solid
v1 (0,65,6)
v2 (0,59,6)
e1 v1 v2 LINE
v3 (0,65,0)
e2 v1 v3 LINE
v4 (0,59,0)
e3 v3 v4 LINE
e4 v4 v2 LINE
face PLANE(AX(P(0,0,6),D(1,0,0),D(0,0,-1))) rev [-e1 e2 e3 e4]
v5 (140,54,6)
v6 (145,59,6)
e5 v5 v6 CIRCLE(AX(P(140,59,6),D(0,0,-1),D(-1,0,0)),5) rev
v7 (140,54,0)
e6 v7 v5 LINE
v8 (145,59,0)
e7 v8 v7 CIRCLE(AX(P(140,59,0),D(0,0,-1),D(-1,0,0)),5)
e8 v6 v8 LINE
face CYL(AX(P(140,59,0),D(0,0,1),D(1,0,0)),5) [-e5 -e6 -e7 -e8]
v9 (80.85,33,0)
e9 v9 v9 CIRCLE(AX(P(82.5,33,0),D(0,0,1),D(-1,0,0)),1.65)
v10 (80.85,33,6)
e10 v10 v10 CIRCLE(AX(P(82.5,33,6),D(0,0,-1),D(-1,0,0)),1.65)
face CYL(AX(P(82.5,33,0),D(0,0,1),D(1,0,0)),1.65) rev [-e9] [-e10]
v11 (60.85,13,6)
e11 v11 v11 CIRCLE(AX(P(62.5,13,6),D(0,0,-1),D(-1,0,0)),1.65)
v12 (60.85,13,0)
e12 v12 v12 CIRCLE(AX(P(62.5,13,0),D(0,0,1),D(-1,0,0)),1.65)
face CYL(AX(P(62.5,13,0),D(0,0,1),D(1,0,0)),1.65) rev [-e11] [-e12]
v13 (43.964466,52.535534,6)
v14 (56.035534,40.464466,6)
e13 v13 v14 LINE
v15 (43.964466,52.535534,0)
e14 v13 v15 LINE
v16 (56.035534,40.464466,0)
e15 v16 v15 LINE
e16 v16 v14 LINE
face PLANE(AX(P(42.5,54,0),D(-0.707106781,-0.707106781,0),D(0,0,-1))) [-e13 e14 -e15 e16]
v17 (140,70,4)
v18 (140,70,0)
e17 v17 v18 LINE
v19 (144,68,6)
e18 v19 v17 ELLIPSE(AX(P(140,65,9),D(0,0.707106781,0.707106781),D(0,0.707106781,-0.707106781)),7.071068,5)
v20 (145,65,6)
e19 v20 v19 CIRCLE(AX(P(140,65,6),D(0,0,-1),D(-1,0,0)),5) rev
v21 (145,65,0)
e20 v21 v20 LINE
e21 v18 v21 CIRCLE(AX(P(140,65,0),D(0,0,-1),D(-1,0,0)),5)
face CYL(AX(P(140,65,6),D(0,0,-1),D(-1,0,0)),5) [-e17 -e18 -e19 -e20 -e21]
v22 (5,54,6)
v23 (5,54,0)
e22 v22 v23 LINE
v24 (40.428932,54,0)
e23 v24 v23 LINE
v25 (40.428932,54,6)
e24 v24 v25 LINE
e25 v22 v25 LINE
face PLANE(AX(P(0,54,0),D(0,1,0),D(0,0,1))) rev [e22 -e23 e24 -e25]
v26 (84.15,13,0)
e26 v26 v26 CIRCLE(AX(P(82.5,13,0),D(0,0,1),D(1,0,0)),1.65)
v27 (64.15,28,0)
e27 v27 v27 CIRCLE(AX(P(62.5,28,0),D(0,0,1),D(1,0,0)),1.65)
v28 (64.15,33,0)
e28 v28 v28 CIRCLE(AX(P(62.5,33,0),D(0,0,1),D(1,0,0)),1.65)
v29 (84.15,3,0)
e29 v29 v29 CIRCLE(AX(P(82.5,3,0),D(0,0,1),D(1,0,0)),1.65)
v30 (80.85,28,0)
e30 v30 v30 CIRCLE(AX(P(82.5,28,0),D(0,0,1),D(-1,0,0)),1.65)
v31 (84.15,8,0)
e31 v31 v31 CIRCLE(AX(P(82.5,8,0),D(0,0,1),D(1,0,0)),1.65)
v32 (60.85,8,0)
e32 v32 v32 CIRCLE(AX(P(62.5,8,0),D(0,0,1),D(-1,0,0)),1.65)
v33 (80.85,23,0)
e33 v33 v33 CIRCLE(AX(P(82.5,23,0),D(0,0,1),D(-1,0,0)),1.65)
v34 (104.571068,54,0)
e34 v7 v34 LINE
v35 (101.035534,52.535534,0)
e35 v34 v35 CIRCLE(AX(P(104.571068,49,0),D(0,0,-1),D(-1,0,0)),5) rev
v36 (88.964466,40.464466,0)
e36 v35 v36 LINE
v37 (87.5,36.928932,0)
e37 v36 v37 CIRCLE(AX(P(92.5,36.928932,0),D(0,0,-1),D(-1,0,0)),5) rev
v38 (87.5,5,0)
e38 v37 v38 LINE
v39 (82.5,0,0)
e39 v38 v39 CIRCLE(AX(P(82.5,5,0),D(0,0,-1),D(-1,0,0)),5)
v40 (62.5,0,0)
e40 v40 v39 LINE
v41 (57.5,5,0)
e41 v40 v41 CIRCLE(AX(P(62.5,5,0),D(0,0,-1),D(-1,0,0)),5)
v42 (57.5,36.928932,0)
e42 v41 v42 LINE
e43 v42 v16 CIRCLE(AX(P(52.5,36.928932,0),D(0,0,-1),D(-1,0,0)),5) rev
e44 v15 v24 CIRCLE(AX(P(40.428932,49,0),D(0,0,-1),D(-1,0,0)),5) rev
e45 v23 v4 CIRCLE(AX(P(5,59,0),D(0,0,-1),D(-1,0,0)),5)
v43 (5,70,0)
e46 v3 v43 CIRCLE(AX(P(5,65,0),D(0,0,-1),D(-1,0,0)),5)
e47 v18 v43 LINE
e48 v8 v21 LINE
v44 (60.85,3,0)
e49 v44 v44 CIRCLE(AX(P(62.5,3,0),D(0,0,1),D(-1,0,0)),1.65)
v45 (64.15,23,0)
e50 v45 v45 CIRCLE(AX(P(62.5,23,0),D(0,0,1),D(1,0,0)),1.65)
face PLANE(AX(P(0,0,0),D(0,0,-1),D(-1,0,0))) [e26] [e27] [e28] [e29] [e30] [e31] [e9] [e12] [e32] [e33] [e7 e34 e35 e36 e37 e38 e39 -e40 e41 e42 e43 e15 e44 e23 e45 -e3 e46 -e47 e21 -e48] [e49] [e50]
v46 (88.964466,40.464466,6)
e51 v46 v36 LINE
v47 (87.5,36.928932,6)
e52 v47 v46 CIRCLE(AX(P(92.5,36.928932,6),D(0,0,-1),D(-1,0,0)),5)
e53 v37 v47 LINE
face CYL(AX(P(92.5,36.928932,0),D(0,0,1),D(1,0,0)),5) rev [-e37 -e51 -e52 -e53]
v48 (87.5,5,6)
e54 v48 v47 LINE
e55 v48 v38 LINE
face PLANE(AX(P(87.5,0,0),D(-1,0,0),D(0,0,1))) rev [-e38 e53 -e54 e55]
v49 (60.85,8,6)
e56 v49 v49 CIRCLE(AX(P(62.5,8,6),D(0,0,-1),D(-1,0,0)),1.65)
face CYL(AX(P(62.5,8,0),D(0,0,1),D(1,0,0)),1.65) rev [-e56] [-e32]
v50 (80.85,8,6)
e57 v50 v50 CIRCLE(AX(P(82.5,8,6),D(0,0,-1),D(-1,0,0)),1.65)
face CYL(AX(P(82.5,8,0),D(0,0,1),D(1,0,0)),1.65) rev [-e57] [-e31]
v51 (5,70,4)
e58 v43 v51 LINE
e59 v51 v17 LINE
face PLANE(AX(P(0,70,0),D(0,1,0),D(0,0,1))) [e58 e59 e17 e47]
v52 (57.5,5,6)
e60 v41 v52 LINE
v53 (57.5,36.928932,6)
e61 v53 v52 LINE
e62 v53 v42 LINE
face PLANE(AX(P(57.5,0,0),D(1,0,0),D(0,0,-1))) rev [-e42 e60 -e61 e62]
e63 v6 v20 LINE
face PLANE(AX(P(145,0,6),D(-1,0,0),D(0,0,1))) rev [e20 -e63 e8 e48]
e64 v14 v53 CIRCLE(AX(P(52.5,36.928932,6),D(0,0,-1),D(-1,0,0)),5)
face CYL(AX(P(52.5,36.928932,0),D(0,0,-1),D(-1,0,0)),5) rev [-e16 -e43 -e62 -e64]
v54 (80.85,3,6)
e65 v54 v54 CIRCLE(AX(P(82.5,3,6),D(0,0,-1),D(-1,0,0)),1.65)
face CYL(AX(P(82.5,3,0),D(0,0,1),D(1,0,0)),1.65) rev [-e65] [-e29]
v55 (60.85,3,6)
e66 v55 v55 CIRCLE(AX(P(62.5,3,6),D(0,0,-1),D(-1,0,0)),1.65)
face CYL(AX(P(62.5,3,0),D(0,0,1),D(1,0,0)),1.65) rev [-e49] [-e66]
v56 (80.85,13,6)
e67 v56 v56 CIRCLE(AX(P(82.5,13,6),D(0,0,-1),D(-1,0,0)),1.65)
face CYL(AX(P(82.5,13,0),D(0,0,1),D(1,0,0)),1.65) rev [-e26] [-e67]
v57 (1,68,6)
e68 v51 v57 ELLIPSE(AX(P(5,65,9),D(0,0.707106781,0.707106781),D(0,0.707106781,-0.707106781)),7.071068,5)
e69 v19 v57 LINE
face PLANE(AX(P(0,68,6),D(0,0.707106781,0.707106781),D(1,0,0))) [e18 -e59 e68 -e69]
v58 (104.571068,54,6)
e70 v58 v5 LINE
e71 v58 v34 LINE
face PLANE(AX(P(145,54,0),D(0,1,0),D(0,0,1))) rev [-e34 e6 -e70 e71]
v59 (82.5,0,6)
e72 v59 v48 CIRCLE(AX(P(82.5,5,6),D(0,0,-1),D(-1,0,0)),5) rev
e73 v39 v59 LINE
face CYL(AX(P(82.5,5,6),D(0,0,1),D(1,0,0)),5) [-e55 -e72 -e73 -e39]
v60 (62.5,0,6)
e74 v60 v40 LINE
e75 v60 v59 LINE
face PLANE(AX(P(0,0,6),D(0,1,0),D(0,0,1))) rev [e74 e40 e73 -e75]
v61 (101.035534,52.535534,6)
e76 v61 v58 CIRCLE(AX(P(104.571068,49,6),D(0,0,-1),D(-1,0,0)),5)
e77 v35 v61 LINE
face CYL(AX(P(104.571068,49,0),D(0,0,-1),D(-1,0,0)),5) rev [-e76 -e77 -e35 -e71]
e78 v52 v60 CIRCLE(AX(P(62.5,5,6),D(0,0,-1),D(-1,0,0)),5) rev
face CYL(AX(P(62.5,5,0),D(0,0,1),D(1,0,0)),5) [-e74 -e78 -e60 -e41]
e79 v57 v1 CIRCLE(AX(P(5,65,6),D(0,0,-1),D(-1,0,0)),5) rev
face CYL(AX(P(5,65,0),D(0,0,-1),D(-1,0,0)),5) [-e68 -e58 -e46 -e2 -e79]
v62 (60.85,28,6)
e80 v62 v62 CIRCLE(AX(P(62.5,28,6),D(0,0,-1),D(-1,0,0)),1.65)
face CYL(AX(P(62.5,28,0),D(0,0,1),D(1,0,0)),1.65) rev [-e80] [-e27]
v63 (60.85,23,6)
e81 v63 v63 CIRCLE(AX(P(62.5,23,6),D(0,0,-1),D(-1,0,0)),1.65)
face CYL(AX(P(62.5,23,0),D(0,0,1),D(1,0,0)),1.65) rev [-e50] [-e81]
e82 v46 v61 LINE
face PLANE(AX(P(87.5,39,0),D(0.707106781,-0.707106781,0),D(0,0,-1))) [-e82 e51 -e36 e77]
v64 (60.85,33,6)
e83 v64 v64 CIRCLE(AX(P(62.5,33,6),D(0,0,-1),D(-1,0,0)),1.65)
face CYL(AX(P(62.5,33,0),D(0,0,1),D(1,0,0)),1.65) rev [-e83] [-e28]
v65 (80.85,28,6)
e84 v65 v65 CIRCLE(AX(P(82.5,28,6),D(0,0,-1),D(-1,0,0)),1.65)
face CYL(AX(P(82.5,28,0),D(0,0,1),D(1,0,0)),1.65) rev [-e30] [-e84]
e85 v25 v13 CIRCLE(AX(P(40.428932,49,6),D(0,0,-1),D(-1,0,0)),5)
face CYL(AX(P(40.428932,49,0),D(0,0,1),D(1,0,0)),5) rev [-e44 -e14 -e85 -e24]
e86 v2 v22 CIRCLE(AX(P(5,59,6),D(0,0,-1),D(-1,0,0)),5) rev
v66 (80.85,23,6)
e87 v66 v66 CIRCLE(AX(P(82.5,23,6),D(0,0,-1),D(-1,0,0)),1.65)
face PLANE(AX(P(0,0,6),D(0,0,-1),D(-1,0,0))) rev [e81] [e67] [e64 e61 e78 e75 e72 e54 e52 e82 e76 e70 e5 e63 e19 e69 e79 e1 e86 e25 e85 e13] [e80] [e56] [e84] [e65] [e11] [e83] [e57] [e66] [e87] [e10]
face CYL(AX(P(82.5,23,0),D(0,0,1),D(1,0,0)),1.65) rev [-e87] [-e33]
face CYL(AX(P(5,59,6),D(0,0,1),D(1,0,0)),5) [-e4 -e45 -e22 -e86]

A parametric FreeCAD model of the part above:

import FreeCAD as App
import Part
import Sketcher

V = App.Vector
Q = App.Units.Quantity


def edges_at(feature, points):
    """Names of the edges that pass closest to the given points."""
    edges = feature.Shape.Edges
    near = lambda p: min(range(len(edges)), key=lambda i: edges[i].distToShape(Part.Vertex(*p))[0])
    return sorted({f"Edge{near(p) + 1}" for p in points})

doc = App.newDocument("Part")
params = doc.addObject("Spreadsheet::Sheet", "Params")
for row, (alias, value) in enumerate([
    ("sketch1_width", "145 mm"),
    ("sketch1_height", "40 mm"),
    ("pad1_length", "6 mm"),
    ("sketch2_diameter", "3.3 mm"),
    ("sketch3_width", "145 mm"),
    ("sketch3_height", "30 mm"),
    ("pad2_length", "6 mm"),
    ("chamfer_size", "2 mm"),
    ("sketch4_height", "54 mm"),
    ("sketch4_width", "57.5 mm"),
    ("chamfer2_size", "15 mm"),
    ("fillet_radius", "5 mm"),
], start=1):
    params.set(f"A{row}", alias)
    params.set(f"B{row}", "=" + value)
    params.setAlias(f"B{row}", alias)

body = doc.addObject("PartDesign::Body", "Body")

# Sketch on XY plane
sketch1 = body.newObject("Sketcher::SketchObject", "Sketch")
sketch1.AttachmentSupport = (doc.getObject("XY_Plane"), [""])
sketch1.MapMode = "FlatFace"
sketch1.addGeometry(Part.LineSegment(V(0, 40, 0), V(0, 0, 0)), False)
sketch1.addGeometry(Part.LineSegment(V(0, 0, 0), V(145, 0, 0)), False)
sketch1.addGeometry(Part.LineSegment(V(145, 0, 0), V(145, 40, 0)), False)
sketch1.addGeometry(Part.LineSegment(V(145, 40, 0), V(0, 40, 0)), False)
sketch1.addConstraint(Sketcher.Constraint("Coincident", 0, 2, 1, 1))
sketch1.addConstraint(Sketcher.Constraint("Coincident", 1, 2, 2, 1))
sketch1.addConstraint(Sketcher.Constraint("Coincident", 2, 2, 3, 1))
sketch1.addConstraint(Sketcher.Constraint("Coincident", 3, 2, 0, 1))
sketch1.addConstraint(Sketcher.Constraint("Vertical", 0))
sketch1.addConstraint(Sketcher.Constraint("Horizontal", 1))
sketch1.addConstraint(Sketcher.Constraint("Vertical", 2))
sketch1.addConstraint(Sketcher.Constraint("Horizontal", 3))
sketch1.addConstraint(Sketcher.Constraint("Coincident", 0, 2, -1, 1))
sketch1.addConstraint(Sketcher.Constraint("DistanceX", 1, 1, 1, 2, Q("145 mm")))
sketch1.addConstraint(Sketcher.Constraint("DistanceY", 0, 2, 0, 1, Q("40 mm")))
sketch1.setExpression("Constraints[9]", "Params.sketch1_width")
sketch1.setExpression("Constraints[10]", "Params.sketch1_height")
pad1 = body.newObject("PartDesign::Pad", "Pad")
pad1.Profile = sketch1
pad1.setExpression("Length", "Params.pad1_length")

# Sketch on XY plane
sketch2 = body.newObject("Sketcher::SketchObject", "Sketch001")
sketch2.AttachmentSupport = (doc.getObject("XY_Plane"), [""])
sketch2.MapMode = "FlatFace"
sketch2.AttachmentOffset = App.Placement(V(0, 0, 6), App.Rotation())
sketch2.addGeometry(Part.Circle(V(62.5, 23, 0), V(0, 0, 1), 1.6), False)
sketch2.addGeometry(Part.Circle(V(62.5, 3, 0), V(0, 0, 1), 1.6), False)
sketch2.addGeometry(Part.Circle(V(82.5, 3, 0), V(0, 0, 1), 1.6), False)
sketch2.addGeometry(Part.Circle(V(82.5, 23, 0), V(0, 0, 1), 1.6), False)
sketch2.addGeometry(Part.Circle(V(62.5, 28, 0), V(0, 0, 1), 1.6), False)
sketch2.addGeometry(Part.Circle(V(62.5, 8, 0), V(0, 0, 1), 1.6), False)
sketch2.addGeometry(Part.Circle(V(82.5, 8, 0), V(0, 0, 1), 1.6), False)
sketch2.addGeometry(Part.Circle(V(82.5, 28, 0), V(0, 0, 1), 1.6), False)
sketch2.addGeometry(Part.Circle(V(62.5, 33, 0), V(0, 0, 1), 1.6), False)
sketch2.addGeometry(Part.Circle(V(62.5, 13, 0), V(0, 0, 1), 1.6), False)
sketch2.addGeometry(Part.Circle(V(82.5, 13, 0), V(0, 0, 1), 1.6), False)
sketch2.addGeometry(Part.Circle(V(82.5, 33, 0), V(0, 0, 1), 1.6), False)
sketch2.addConstraint(Sketcher.Constraint("Equal", 0, 1))
sketch2.addConstraint(Sketcher.Constraint("Equal", 1, 2))
sketch2.addConstraint(Sketcher.Constraint("Equal", 2, 3))
sketch2.addConstraint(Sketcher.Constraint("Equal", 3, 4))
sketch2.addConstraint(Sketcher.Constraint("Equal", 4, 5))
sketch2.addConstraint(Sketcher.Constraint("Equal", 5, 6))
sketch2.addConstraint(Sketcher.Constraint("Equal", 6, 7))
sketch2.addConstraint(Sketcher.Constraint("Equal", 7, 8))
sketch2.addConstraint(Sketcher.Constraint("Equal", 8, 9))
sketch2.addConstraint(Sketcher.Constraint("Equal", 9, 10))
sketch2.addConstraint(Sketcher.Constraint("Equal", 10, 11))
sketch2.addConstraint(Sketcher.Constraint("Horizontal", 1, 3, 2, 3))
sketch2.addConstraint(Sketcher.Constraint("Horizontal", 0, 3, 3, 3))
sketch2.addConstraint(Sketcher.Constraint("Horizontal", 5, 3, 6, 3))
sketch2.addConstraint(Sketcher.Constraint("Horizontal", 4, 3, 7, 3))
sketch2.addConstraint(Sketcher.Constraint("Horizontal", 9, 3, 10, 3))
sketch2.addConstraint(Sketcher.Constraint("Horizontal", 8, 3, 11, 3))
sketch2.addConstraint(Sketcher.Constraint("Vertical", 0, 3, 1, 3))
sketch2.addConstraint(Sketcher.Constraint("Vertical", 2, 3, 3, 3))
sketch2.addConstraint(Sketcher.Constraint("Vertical", 1, 3, 4, 3))
sketch2.addConstraint(Sketcher.Constraint("Vertical", 4, 3, 5, 3))
sketch2.addConstraint(Sketcher.Constraint("Vertical", 3, 3, 6, 3))
sketch2.addConstraint(Sketcher.Constraint("Vertical", 6, 3, 7, 3))
sketch2.addConstraint(Sketcher.Constraint("Vertical", 5, 3, 8, 3))
sketch2.addConstraint(Sketcher.Constraint("Vertical", 8, 3, 9, 3))
sketch2.addConstraint(Sketcher.Constraint("Vertical", 7, 3, 10, 3))
sketch2.addConstraint(Sketcher.Constraint("Vertical", 10, 3, 11, 3))
sketch2.addConstraint(Sketcher.Constraint("Diameter", 0, Q("3.3 mm")))
sketch2.addConstraint(Sketcher.Constraint("DistanceY", -1, 1, 0, 3, Q("23 mm")))
sketch2.addConstraint(Sketcher.Constraint("DistanceY", -1, 1, 1, 3, Q("3 mm")))
sketch2.addConstraint(Sketcher.Constraint("DistanceY", -1, 1, 4, 3, Q("28 mm")))
sketch2.addConstraint(Sketcher.Constraint("DistanceY", -1, 1, 5, 3, Q("8 mm")))
sketch2.addConstraint(Sketcher.Constraint("DistanceY", -1, 1, 8, 3, Q("33 mm")))
sketch2.addConstraint(Sketcher.Constraint("DistanceY", -1, 1, 9, 3, Q("13 mm")))
sketch2.addConstraint(Sketcher.Constraint("DistanceX", 1, 3, 2, 3, Q("20 mm")))
sketch2.addConstraint(Sketcher.Constraint("DistanceX", -1, 1, 0, 3, Q("62.5 mm")))
sketch2.setExpression("Constraints[27]", "Params.sketch2_diameter")
pocket1 = body.newObject("PartDesign::Pocket", "Pocket")
pocket1.Profile = sketch2
pocket1.Type = "ThroughAll"
pocket1.Midplane = True

# Sketch on XY plane
sketch3 = body.newObject("Sketcher::SketchObject", "Sketch002")
sketch3.AttachmentSupport = (doc.getObject("XY_Plane"), [""])
sketch3.MapMode = "FlatFace"
sketch3.AttachmentOffset = App.Placement(V(0, 0, 6), App.Rotation())
sketch3.addGeometry(Part.LineSegment(V(0, 70, 0), V(0, 40, 0)), False)
sketch3.addGeometry(Part.LineSegment(V(0, 40, 0), V(145, 40, 0)), False)
sketch3.addGeometry(Part.LineSegment(V(145, 40, 0), V(145, 70, 0)), False)
sketch3.addGeometry(Part.LineSegment(V(145, 70, 0), V(0, 70, 0)), False)
sketch3.addConstraint(Sketcher.Constraint("Coincident", 0, 2, 1, 1))
sketch3.addConstraint(Sketcher.Constraint("Coincident", 1, 2, 2, 1))
sketch3.addConstraint(Sketcher.Constraint("Coincident", 2, 2, 3, 1))
sketch3.addConstraint(Sketcher.Constraint("Coincident", 3, 2, 0, 1))
sketch3.addConstraint(Sketcher.Constraint("Vertical", 0))
sketch3.addConstraint(Sketcher.Constraint("Horizontal", 1))
sketch3.addConstraint(Sketcher.Constraint("Vertical", 2))
sketch3.addConstraint(Sketcher.Constraint("Horizontal", 3))
sketch3.addConstraint(Sketcher.Constraint("PointOnObject", 0, 2, -2))
sketch3.addConstraint(Sketcher.Constraint("DistanceX", 1, 1, 1, 2, Q("145 mm")))
sketch3.addConstraint(Sketcher.Constraint("DistanceY", 0, 2, 0, 1, Q("30 mm")))
sketch3.addConstraint(Sketcher.Constraint("DistanceY", -1, 1, 0, 2, Q("40 mm")))
sketch3.setExpression("Constraints[9]", "Params.sketch3_width")
sketch3.setExpression("Constraints[10]", "Params.sketch3_height")
pad2 = body.newObject("PartDesign::Pad", "Pad001")
pad2.Profile = sketch3
pad2.setExpression("Length", "Params.pad2_length")
pad2.Reversed = True
doc.recompute()

chamfer = body.newObject("PartDesign::Chamfer", "Chamfer")
chamfer.Base = (pad2, edges_at(pad2, [(72.5, 70, 6)]))
chamfer.setExpression("Size", "Params.chamfer_size")

# Sketch on XY plane
sketch4 = body.newObject("Sketcher::SketchObject", "Sketch003")
sketch4.AttachmentSupport = (doc.getObject("XY_Plane"), [""])
sketch4.MapMode = "FlatFace"
sketch4.AttachmentOffset = App.Placement(V(0, 0, 6), App.Rotation())
sketch4.addGeometry(Part.LineSegment(V(0, 54, 0), V(0, 0, 0)), False)
sketch4.addGeometry(Part.LineSegment(V(0, 0, 0), V(58, 0, 0)), False)
sketch4.addGeometry(Part.LineSegment(V(58, 0, 0), V(58, 54, 0)), False)
sketch4.addGeometry(Part.LineSegment(V(58, 54, 0), V(0, 54, 0)), False)
sketch4.addGeometry(Part.LineSegment(V(88, 54, 0), V(88, 0, 0)), False)
sketch4.addGeometry(Part.LineSegment(V(88, 0, 0), V(145, 0, 0)), False)
sketch4.addGeometry(Part.LineSegment(V(145, 0, 0), V(145, 54, 0)), False)
sketch4.addGeometry(Part.LineSegment(V(145, 54, 0), V(88, 54, 0)), False)
sketch4.addConstraint(Sketcher.Constraint("Coincident", 0, 2, 1, 1))
sketch4.addConstraint(Sketcher.Constraint("Coincident", 1, 2, 2, 1))
sketch4.addConstraint(Sketcher.Constraint("Coincident", 2, 2, 3, 1))
sketch4.addConstraint(Sketcher.Constraint("Coincident", 3, 2, 0, 1))
sketch4.addConstraint(Sketcher.Constraint("Coincident", 4, 2, 5, 1))
sketch4.addConstraint(Sketcher.Constraint("Coincident", 5, 2, 6, 1))
sketch4.addConstraint(Sketcher.Constraint("Coincident", 6, 2, 7, 1))
sketch4.addConstraint(Sketcher.Constraint("Coincident", 7, 2, 4, 1))
sketch4.addConstraint(Sketcher.Constraint("Vertical", 0))
sketch4.addConstraint(Sketcher.Constraint("Horizontal", 1))
sketch4.addConstraint(Sketcher.Constraint("Vertical", 2))
sketch4.addConstraint(Sketcher.Constraint("Horizontal", 3))
sketch4.addConstraint(Sketcher.Constraint("Vertical", 4))
sketch4.addConstraint(Sketcher.Constraint("Horizontal", 5))
sketch4.addConstraint(Sketcher.Constraint("Vertical", 6))
sketch4.addConstraint(Sketcher.Constraint("Horizontal", 7))
sketch4.addConstraint(Sketcher.Constraint("Coincident", 0, 2, -1, 1))
sketch4.addConstraint(Sketcher.Constraint("PointOnObject", 4, 2, -1))
sketch4.addConstraint(Sketcher.Constraint("Horizontal", 3, 2, 6, 2))
sketch4.addConstraint(Sketcher.Constraint("Equal", 3, 5))
sketch4.addConstraint(Sketcher.Constraint("DistanceY", 0, 2, 0, 1, Q("54 mm")))
sketch4.addConstraint(Sketcher.Constraint("DistanceX", 1, 1, 1, 2, Q("57.5 mm")))
sketch4.addConstraint(Sketcher.Constraint("DistanceX", -1, 1, 5, 2, Q("145 mm")))
sketch4.setExpression("Constraints[20]", "Params.sketch4_height")
sketch4.setExpression("Constraints[21]", "Params.sketch4_width")
pocket2 = body.newObject("PartDesign::Pocket", "Pocket001")
pocket2.Profile = sketch4
pocket2.Type = "ThroughAll"
pocket2.Midplane = True
doc.recompute()

chamfer2 = body.newObject("PartDesign::Chamfer", "Chamfer001")
chamfer2.Base = (pocket2, edges_at(pocket2, [(87.5, 54, 3), (57.5, 54, 3)]))
chamfer2.setExpression("Size", "Params.chamfer2_size")
doc.recompute()

fillet = body.newObject("PartDesign::Fillet", "Fillet")
fillet.Base = (chamfer2, edges_at(chamfer2, [
    (145, 70, 2),
    (145, 54, 3),
    (102.5, 54, 3),
    (87.5, 39, 3),
    (87.5, 0, 3),
    (57.5, 0, 3),
    (57.5, 39, 3),
    (42.5, 54, 3),
    (0, 54, 3),
    (0, 70, 2),
]))
fillet.setExpression("Radius", "Params.fillet_radius")

doc.recompute()
